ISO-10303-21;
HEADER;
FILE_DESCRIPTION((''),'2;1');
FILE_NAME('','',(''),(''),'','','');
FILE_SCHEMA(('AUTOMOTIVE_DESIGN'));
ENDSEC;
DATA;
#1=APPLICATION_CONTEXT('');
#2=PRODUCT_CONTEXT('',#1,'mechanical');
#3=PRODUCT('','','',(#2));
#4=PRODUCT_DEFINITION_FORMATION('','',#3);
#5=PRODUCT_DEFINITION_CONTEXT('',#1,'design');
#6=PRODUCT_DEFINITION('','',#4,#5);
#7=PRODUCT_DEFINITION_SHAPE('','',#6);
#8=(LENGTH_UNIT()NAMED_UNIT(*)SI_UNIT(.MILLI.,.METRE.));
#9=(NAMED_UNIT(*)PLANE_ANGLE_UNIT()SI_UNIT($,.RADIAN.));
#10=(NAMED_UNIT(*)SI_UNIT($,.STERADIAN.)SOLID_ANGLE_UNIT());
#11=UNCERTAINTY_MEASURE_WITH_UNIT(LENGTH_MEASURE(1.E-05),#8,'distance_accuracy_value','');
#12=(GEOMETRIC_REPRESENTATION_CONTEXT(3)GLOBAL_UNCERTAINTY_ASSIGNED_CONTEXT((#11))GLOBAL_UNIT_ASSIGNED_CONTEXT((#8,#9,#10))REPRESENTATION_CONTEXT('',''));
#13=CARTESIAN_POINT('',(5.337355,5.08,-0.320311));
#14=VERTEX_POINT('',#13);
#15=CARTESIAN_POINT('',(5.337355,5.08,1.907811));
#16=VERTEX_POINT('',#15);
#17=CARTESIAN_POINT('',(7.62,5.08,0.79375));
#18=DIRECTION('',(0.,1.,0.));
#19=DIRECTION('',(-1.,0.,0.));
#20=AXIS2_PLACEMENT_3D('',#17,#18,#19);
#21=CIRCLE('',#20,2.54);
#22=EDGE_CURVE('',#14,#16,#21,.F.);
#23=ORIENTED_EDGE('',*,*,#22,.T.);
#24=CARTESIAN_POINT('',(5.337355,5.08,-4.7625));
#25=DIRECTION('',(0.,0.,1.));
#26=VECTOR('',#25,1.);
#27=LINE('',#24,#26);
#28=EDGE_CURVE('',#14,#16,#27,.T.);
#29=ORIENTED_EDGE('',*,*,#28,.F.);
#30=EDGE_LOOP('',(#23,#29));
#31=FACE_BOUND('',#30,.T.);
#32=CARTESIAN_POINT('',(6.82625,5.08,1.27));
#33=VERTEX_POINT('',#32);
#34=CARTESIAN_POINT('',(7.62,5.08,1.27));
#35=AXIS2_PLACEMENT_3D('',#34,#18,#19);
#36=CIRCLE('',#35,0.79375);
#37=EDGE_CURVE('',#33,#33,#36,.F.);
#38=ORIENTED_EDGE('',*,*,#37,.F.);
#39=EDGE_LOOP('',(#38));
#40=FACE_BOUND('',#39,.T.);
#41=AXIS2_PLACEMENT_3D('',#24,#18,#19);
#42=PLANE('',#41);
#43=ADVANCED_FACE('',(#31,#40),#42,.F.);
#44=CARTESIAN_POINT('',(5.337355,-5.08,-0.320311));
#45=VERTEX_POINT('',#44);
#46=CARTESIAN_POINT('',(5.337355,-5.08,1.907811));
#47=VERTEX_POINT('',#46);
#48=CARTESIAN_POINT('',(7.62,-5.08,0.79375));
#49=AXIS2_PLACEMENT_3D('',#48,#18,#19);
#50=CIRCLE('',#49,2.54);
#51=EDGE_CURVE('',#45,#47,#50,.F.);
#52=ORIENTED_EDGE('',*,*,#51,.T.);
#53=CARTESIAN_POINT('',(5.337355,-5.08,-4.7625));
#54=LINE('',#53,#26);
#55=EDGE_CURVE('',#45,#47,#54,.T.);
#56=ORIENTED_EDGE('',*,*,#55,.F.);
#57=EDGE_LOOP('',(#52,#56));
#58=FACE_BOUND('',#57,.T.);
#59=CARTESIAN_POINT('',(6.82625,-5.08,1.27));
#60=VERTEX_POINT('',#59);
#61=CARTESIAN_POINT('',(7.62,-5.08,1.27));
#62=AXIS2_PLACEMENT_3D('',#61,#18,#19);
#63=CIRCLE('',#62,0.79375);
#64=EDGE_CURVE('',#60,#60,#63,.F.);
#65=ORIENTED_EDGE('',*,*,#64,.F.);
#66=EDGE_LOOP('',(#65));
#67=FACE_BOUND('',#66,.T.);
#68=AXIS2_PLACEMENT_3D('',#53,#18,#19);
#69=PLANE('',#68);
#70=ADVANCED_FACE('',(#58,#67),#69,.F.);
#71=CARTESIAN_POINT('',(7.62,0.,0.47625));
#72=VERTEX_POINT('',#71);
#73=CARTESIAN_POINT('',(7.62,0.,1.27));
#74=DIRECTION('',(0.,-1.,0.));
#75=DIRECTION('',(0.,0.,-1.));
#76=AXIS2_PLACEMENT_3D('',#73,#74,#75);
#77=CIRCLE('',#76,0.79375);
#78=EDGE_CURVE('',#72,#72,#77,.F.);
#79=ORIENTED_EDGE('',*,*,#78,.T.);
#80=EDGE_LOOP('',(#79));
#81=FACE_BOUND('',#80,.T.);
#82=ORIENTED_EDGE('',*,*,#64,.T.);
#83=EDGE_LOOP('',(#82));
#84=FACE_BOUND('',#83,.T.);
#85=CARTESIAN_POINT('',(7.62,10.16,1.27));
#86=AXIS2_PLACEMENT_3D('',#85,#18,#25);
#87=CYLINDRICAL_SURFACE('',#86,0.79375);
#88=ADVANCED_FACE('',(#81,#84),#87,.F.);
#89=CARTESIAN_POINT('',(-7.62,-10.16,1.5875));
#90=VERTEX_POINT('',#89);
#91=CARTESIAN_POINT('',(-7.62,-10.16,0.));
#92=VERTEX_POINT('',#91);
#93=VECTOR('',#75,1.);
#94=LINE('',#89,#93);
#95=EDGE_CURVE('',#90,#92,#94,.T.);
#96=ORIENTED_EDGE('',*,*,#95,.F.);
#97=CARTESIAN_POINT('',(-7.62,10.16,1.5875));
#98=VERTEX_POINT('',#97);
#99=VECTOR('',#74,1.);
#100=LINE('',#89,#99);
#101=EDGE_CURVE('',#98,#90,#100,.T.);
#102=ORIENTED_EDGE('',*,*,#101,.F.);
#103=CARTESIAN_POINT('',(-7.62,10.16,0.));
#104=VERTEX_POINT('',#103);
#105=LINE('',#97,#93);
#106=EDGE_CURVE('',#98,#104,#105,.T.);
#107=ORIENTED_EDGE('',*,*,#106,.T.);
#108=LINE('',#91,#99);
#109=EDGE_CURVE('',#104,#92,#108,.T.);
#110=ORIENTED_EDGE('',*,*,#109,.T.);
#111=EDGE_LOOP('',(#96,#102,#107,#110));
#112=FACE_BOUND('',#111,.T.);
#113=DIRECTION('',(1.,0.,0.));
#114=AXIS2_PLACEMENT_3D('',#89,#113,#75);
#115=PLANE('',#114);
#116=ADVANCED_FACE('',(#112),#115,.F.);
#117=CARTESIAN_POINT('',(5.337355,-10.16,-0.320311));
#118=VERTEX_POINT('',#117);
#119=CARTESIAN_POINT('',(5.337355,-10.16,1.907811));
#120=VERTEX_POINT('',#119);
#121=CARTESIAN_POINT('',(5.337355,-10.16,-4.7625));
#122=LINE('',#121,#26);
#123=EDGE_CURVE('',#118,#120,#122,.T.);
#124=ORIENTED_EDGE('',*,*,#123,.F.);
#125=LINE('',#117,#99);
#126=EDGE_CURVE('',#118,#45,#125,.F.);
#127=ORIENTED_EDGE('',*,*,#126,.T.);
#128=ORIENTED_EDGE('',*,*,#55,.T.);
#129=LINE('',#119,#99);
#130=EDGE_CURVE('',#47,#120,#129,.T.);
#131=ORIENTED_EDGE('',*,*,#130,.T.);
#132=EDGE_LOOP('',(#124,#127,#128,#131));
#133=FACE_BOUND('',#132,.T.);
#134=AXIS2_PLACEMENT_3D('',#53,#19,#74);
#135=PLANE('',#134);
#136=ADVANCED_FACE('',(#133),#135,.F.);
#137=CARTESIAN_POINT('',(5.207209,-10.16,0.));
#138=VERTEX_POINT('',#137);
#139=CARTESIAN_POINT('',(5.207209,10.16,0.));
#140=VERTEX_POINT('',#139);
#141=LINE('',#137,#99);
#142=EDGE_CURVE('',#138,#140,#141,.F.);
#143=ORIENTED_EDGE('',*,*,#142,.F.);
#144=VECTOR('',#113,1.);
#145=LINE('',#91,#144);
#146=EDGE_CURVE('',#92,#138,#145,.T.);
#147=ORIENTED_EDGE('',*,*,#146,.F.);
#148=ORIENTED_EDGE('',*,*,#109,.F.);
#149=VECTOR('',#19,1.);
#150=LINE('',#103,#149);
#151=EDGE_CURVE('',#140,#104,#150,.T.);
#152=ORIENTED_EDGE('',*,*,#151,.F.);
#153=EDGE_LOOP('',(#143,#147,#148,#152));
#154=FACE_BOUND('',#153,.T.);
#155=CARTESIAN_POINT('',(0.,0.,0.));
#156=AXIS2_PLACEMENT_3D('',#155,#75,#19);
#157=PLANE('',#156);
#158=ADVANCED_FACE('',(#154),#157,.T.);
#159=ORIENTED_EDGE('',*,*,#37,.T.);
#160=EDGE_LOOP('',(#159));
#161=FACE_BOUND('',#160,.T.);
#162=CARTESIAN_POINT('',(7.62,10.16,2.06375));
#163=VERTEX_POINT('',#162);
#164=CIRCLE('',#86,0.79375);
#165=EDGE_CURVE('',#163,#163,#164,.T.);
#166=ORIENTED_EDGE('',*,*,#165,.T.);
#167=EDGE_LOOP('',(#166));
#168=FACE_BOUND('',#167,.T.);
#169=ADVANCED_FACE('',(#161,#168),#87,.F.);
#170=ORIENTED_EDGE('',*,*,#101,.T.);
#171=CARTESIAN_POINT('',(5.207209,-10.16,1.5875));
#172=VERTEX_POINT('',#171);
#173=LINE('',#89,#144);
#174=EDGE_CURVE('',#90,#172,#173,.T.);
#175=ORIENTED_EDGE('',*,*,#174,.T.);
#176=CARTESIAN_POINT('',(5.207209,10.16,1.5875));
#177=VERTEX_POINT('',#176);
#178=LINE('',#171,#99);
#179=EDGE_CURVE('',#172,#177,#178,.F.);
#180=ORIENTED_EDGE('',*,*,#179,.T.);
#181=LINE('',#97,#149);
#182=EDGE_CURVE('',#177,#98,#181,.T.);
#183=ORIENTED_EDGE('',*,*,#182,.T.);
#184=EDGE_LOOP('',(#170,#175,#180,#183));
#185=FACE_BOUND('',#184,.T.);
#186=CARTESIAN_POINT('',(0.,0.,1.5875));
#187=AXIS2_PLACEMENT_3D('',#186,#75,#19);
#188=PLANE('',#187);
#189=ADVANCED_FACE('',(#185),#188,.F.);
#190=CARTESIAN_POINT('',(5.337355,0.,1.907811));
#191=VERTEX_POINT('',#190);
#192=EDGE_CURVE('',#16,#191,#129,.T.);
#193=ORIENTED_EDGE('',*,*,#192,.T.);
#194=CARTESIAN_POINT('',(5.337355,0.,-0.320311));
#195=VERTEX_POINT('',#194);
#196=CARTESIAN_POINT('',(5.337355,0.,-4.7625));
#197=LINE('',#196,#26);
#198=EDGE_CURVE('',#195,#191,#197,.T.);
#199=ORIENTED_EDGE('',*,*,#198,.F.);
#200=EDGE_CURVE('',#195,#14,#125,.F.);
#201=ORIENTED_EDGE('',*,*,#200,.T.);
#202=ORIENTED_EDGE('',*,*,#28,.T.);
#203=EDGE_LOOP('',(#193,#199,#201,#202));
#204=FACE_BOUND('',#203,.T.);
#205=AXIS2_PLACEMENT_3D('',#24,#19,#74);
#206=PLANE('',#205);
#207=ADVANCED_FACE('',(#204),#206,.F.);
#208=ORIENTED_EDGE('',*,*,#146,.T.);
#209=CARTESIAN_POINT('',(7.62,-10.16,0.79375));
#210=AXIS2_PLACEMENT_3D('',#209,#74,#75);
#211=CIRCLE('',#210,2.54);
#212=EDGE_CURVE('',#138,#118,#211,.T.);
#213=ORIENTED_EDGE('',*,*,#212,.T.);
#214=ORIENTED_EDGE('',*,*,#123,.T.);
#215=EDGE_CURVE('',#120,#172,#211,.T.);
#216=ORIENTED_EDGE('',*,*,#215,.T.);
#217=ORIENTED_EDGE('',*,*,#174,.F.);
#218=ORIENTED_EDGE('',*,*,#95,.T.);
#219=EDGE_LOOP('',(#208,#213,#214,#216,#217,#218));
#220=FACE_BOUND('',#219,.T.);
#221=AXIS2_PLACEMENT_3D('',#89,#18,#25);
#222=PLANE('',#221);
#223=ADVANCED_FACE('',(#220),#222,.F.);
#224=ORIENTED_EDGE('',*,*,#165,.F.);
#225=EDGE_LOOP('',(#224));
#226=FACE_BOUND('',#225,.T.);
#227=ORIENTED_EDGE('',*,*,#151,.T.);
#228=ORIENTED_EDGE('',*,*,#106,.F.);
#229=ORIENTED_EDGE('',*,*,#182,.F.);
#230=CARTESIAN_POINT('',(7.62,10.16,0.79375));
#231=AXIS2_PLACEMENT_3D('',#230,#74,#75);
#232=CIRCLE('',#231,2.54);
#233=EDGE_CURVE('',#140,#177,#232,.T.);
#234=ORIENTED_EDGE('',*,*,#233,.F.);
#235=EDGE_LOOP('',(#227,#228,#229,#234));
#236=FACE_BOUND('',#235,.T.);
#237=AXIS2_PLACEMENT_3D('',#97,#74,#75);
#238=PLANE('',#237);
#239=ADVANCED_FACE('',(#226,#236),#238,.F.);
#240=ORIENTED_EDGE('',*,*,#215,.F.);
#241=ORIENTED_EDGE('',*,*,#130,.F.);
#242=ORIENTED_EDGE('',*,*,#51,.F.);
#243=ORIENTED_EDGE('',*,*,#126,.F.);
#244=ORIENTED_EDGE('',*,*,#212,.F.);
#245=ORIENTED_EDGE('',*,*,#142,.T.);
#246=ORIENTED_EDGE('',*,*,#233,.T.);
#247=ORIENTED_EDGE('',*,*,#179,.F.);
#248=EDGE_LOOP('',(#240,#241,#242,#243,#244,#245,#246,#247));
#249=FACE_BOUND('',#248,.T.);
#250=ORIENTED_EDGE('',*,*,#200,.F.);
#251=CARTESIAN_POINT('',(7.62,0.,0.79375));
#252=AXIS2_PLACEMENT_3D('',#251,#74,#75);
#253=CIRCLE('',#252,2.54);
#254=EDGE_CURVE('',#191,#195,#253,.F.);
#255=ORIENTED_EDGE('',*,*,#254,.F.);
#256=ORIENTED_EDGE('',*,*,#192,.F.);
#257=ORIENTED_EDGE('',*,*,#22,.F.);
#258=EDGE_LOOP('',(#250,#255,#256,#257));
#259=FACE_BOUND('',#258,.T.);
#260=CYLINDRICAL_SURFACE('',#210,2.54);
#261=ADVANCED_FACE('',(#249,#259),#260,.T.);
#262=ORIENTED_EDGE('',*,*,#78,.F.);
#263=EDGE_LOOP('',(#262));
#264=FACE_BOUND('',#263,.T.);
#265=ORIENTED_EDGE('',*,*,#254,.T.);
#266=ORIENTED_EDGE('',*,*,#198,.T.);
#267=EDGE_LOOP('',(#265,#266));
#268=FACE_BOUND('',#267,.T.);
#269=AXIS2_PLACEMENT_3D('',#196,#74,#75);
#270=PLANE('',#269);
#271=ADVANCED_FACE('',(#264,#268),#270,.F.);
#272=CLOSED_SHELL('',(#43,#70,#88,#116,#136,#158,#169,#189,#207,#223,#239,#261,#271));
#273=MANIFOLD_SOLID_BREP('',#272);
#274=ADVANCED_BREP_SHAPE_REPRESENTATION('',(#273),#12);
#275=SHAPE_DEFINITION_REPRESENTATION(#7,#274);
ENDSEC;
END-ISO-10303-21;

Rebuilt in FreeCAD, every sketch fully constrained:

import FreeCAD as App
import Part
import Sketcher
Q = App.Units.Quantity


def add_polygon(sketch, points):
    """Adds a closed chain of lines whose ends are joined by coincident constraints."""
    first, n = sketch.GeometryCount, len(points)
    for a, b in zip(points, points[1:] + points[:1]):
        sketch.addGeometry(Part.LineSegment(App.Vector(*a, 0), App.Vector(*b, 0)), False)
    for i in range(n):
        sketch.addConstraint(Sketcher.Constraint("Coincident", first + i, 2, first + (i + 1) % n, 1))

doc = App.newDocument("Part")
body = doc.addObject("PartDesign::Body", "Body")

# Sketch on XY plane
sketch1 = body.newObject("Sketcher::SketchObject", "Sketch")
sketch1.AttachmentSupport = (doc.getObject("XY_Plane"), [""])
sketch1.MapMode = "FlatFace"
add_polygon(sketch1, [(-7.62, 10.16), (-7.62, -10.16), (7.62, -10.16), (7.62, 10.16)])  # lines 0-3
sketch1.addConstraint(Sketcher.Constraint("Vertical", 0))
sketch1.addConstraint(Sketcher.Constraint("Horizontal", 1))
sketch1.addConstraint(Sketcher.Constraint("Vertical", 2))
sketch1.addConstraint(Sketcher.Constraint("Horizontal", 3))
sketch1.addConstraint(Sketcher.Constraint("Symmetric", 0, 2, 2, 2, -1, 1))
sketch1.addConstraint(Sketcher.Constraint("DistanceX", 1, 1, 1, 2, Q("0.6 in")))
sketch1.addConstraint(Sketcher.Constraint("DistanceY", 0, 2, 0, 1, Q("0.8 in")))
pad1 = body.newObject("PartDesign::Pad", "Pad")
pad1.Profile = sketch1
pad1.Length = Q("0.0625 in")

# Sketch on YZ plane
sketch2 = body.newObject("Sketcher::SketchObject", "Sketch001")
sketch2.AttachmentSupport = (doc.getObject("YZ_Plane"), [""])
sketch2.MapMode = "FlatFace"
sketch2.AttachmentOffset = App.Placement(App.Vector(0, 0, 0.3 * 25.4), App.Rotation())
add_polygon(sketch2, [(10.16, 3.33375), (-10.16, 3.33375), (-10.16, 0.79375), (10.16, 0.79375)])  # lines 0-3
sketch2.addGeometry(Part.LineSegment(App.Vector(-10.16, 0.79375, 0), App.Vector(10.16, 0.79375, 0)), True)  # axis
sketch2.addConstraint(Sketcher.Constraint("Horizontal", 0))
sketch2.addConstraint(Sketcher.Constraint("Vertical", 1))
sketch2.addConstraint(Sketcher.Constraint("Horizontal", 2))
sketch2.addConstraint(Sketcher.Constraint("Vertical", 3))
sketch2.addConstraint(Sketcher.Constraint("Horizontal", 4))
sketch2.addConstraint(Sketcher.Constraint("Coincident", 4, 1, 1, 2))
sketch2.addConstraint(Sketcher.Constraint("Vertical", 3, 2, 4, 2))
sketch2.addConstraint(Sketcher.Constraint("DistanceX", 0, 2, 0, 1, Q("0.8 in")))
sketch2.addConstraint(Sketcher.Constraint("DistanceY", 1, 2, 1, 1, Q("0.1 in")))
sketch2.addConstraint(Sketcher.Constraint("DistanceX", 0, 2, -1, 1, Q("0.4 in")))
sketch2.addConstraint(Sketcher.Constraint("DistanceY", -1, 1, 1, 2, Q("0.03125 in")))
revolution = body.newObject("PartDesign::Revolution", "Revolution")
revolution.Profile = sketch2
revolution.ReferenceAxis = (sketch2, ["Axis0"])
revolution.Angle = 360

# Sketch on XZ plane
sketch3 = body.newObject("Sketcher::SketchObject", "Sketch002")
sketch3.AttachmentSupport = (doc.getObject("XZ_Plane"), [""])
sketch3.MapMode = "FlatFace"
sketch3.AttachmentOffset = App.Placement(App.Vector(0, 0, -0.4 * 25.4), App.Rotation())
sketch3.addGeometry(Part.Circle(App.Vector(7.62, 1.27, 0), App.Vector(0, 0, 1), 0.79375), False)
sketch3.addConstraint(Sketcher.Constraint("Diameter", 0, Q("0.0625 in")))
sketch3.addConstraint(Sketcher.Constraint("DistanceX", -1, 1, 0, 3, Q("0.3 in")))
sketch3.addConstraint(Sketcher.Constraint("DistanceY", -1, 1, 0, 3, Q("0.05 in")))
doc.recompute()
hole = body.newObject("PartDesign::Hole", "Hole")
hole.Profile = sketch3
hole.ThreadType = "None"
hole.Diameter = Q("0.0625 in")
hole.DepthType = "ThroughAll"
hole.Reversed = True

# Sketch on XY plane
sketch4 = body.newObject("Sketcher::SketchObject", "Sketch003")
sketch4.AttachmentSupport = (doc.getObject("XY_Plane"), [""])
sketch4.MapMode = "FlatFace"
sketch4.AttachmentOffset = App.Placement(App.Vector(0, 0, 0.0625 * 25.4), App.Rotation())
add_polygon(sketch4, [(5.337355, 5.08), (5.337355, 0), (10.582835, 0), (10.582835, 5.08)])  # lines 0-3
add_polygon(sketch4, [(5.337355, -5.08), (5.337355, -10.16), (10.582835, -10.16), (10.582835, -5.08)])  # lines 4-7
sketch4.addConstraint(Sketcher.Constraint("Vertical", 0))
sketch4.addConstraint(Sketcher.Constraint("Horizontal", 1))
sketch4.addConstraint(Sketcher.Constraint("Vertical", 2))
sketch4.addConstraint(Sketcher.Constraint("Horizontal", 3))
sketch4.addConstraint(Sketcher.Constraint("Vertical", 4))
sketch4.addConstraint(Sketcher.Constraint("Horizontal", 5))
sketch4.addConstraint(Sketcher.Constraint("Vertical", 6))
sketch4.addConstraint(Sketcher.Constraint("Horizontal", 7))
sketch4.addConstraint(Sketcher.Constraint("Symmetric", 2, 2, 6, 2, -1))
sketch4.addConstraint(Sketcher.Constraint("PointOnObject", 0, 2, -1))
sketch4.addConstraint(Sketcher.Constraint("Vertical", 3, 2, 4, 2))
sketch4.addConstraint(Sketcher.Constraint("Equal", 2, 4))
sketch4.addConstraint(Sketcher.Constraint("DistanceY", 0, 2, 0, 1, Q("0.2 in")))
sketch4.addConstraint(Sketcher.Constraint("DistanceX", 1, 1, 1, 2, Q("5.24548 mm")))
sketch4.addConstraint(Sketcher.Constraint("DistanceX", -1, 1, 0, 2, Q("5.337355 mm")))
pocket1 = body.newObject("PartDesign::Pocket", "Pocket")
pocket1.Profile = sketch4
pocket1.Length = Q("0.5 in")
pocket1.Midplane = True

doc.recompute()
